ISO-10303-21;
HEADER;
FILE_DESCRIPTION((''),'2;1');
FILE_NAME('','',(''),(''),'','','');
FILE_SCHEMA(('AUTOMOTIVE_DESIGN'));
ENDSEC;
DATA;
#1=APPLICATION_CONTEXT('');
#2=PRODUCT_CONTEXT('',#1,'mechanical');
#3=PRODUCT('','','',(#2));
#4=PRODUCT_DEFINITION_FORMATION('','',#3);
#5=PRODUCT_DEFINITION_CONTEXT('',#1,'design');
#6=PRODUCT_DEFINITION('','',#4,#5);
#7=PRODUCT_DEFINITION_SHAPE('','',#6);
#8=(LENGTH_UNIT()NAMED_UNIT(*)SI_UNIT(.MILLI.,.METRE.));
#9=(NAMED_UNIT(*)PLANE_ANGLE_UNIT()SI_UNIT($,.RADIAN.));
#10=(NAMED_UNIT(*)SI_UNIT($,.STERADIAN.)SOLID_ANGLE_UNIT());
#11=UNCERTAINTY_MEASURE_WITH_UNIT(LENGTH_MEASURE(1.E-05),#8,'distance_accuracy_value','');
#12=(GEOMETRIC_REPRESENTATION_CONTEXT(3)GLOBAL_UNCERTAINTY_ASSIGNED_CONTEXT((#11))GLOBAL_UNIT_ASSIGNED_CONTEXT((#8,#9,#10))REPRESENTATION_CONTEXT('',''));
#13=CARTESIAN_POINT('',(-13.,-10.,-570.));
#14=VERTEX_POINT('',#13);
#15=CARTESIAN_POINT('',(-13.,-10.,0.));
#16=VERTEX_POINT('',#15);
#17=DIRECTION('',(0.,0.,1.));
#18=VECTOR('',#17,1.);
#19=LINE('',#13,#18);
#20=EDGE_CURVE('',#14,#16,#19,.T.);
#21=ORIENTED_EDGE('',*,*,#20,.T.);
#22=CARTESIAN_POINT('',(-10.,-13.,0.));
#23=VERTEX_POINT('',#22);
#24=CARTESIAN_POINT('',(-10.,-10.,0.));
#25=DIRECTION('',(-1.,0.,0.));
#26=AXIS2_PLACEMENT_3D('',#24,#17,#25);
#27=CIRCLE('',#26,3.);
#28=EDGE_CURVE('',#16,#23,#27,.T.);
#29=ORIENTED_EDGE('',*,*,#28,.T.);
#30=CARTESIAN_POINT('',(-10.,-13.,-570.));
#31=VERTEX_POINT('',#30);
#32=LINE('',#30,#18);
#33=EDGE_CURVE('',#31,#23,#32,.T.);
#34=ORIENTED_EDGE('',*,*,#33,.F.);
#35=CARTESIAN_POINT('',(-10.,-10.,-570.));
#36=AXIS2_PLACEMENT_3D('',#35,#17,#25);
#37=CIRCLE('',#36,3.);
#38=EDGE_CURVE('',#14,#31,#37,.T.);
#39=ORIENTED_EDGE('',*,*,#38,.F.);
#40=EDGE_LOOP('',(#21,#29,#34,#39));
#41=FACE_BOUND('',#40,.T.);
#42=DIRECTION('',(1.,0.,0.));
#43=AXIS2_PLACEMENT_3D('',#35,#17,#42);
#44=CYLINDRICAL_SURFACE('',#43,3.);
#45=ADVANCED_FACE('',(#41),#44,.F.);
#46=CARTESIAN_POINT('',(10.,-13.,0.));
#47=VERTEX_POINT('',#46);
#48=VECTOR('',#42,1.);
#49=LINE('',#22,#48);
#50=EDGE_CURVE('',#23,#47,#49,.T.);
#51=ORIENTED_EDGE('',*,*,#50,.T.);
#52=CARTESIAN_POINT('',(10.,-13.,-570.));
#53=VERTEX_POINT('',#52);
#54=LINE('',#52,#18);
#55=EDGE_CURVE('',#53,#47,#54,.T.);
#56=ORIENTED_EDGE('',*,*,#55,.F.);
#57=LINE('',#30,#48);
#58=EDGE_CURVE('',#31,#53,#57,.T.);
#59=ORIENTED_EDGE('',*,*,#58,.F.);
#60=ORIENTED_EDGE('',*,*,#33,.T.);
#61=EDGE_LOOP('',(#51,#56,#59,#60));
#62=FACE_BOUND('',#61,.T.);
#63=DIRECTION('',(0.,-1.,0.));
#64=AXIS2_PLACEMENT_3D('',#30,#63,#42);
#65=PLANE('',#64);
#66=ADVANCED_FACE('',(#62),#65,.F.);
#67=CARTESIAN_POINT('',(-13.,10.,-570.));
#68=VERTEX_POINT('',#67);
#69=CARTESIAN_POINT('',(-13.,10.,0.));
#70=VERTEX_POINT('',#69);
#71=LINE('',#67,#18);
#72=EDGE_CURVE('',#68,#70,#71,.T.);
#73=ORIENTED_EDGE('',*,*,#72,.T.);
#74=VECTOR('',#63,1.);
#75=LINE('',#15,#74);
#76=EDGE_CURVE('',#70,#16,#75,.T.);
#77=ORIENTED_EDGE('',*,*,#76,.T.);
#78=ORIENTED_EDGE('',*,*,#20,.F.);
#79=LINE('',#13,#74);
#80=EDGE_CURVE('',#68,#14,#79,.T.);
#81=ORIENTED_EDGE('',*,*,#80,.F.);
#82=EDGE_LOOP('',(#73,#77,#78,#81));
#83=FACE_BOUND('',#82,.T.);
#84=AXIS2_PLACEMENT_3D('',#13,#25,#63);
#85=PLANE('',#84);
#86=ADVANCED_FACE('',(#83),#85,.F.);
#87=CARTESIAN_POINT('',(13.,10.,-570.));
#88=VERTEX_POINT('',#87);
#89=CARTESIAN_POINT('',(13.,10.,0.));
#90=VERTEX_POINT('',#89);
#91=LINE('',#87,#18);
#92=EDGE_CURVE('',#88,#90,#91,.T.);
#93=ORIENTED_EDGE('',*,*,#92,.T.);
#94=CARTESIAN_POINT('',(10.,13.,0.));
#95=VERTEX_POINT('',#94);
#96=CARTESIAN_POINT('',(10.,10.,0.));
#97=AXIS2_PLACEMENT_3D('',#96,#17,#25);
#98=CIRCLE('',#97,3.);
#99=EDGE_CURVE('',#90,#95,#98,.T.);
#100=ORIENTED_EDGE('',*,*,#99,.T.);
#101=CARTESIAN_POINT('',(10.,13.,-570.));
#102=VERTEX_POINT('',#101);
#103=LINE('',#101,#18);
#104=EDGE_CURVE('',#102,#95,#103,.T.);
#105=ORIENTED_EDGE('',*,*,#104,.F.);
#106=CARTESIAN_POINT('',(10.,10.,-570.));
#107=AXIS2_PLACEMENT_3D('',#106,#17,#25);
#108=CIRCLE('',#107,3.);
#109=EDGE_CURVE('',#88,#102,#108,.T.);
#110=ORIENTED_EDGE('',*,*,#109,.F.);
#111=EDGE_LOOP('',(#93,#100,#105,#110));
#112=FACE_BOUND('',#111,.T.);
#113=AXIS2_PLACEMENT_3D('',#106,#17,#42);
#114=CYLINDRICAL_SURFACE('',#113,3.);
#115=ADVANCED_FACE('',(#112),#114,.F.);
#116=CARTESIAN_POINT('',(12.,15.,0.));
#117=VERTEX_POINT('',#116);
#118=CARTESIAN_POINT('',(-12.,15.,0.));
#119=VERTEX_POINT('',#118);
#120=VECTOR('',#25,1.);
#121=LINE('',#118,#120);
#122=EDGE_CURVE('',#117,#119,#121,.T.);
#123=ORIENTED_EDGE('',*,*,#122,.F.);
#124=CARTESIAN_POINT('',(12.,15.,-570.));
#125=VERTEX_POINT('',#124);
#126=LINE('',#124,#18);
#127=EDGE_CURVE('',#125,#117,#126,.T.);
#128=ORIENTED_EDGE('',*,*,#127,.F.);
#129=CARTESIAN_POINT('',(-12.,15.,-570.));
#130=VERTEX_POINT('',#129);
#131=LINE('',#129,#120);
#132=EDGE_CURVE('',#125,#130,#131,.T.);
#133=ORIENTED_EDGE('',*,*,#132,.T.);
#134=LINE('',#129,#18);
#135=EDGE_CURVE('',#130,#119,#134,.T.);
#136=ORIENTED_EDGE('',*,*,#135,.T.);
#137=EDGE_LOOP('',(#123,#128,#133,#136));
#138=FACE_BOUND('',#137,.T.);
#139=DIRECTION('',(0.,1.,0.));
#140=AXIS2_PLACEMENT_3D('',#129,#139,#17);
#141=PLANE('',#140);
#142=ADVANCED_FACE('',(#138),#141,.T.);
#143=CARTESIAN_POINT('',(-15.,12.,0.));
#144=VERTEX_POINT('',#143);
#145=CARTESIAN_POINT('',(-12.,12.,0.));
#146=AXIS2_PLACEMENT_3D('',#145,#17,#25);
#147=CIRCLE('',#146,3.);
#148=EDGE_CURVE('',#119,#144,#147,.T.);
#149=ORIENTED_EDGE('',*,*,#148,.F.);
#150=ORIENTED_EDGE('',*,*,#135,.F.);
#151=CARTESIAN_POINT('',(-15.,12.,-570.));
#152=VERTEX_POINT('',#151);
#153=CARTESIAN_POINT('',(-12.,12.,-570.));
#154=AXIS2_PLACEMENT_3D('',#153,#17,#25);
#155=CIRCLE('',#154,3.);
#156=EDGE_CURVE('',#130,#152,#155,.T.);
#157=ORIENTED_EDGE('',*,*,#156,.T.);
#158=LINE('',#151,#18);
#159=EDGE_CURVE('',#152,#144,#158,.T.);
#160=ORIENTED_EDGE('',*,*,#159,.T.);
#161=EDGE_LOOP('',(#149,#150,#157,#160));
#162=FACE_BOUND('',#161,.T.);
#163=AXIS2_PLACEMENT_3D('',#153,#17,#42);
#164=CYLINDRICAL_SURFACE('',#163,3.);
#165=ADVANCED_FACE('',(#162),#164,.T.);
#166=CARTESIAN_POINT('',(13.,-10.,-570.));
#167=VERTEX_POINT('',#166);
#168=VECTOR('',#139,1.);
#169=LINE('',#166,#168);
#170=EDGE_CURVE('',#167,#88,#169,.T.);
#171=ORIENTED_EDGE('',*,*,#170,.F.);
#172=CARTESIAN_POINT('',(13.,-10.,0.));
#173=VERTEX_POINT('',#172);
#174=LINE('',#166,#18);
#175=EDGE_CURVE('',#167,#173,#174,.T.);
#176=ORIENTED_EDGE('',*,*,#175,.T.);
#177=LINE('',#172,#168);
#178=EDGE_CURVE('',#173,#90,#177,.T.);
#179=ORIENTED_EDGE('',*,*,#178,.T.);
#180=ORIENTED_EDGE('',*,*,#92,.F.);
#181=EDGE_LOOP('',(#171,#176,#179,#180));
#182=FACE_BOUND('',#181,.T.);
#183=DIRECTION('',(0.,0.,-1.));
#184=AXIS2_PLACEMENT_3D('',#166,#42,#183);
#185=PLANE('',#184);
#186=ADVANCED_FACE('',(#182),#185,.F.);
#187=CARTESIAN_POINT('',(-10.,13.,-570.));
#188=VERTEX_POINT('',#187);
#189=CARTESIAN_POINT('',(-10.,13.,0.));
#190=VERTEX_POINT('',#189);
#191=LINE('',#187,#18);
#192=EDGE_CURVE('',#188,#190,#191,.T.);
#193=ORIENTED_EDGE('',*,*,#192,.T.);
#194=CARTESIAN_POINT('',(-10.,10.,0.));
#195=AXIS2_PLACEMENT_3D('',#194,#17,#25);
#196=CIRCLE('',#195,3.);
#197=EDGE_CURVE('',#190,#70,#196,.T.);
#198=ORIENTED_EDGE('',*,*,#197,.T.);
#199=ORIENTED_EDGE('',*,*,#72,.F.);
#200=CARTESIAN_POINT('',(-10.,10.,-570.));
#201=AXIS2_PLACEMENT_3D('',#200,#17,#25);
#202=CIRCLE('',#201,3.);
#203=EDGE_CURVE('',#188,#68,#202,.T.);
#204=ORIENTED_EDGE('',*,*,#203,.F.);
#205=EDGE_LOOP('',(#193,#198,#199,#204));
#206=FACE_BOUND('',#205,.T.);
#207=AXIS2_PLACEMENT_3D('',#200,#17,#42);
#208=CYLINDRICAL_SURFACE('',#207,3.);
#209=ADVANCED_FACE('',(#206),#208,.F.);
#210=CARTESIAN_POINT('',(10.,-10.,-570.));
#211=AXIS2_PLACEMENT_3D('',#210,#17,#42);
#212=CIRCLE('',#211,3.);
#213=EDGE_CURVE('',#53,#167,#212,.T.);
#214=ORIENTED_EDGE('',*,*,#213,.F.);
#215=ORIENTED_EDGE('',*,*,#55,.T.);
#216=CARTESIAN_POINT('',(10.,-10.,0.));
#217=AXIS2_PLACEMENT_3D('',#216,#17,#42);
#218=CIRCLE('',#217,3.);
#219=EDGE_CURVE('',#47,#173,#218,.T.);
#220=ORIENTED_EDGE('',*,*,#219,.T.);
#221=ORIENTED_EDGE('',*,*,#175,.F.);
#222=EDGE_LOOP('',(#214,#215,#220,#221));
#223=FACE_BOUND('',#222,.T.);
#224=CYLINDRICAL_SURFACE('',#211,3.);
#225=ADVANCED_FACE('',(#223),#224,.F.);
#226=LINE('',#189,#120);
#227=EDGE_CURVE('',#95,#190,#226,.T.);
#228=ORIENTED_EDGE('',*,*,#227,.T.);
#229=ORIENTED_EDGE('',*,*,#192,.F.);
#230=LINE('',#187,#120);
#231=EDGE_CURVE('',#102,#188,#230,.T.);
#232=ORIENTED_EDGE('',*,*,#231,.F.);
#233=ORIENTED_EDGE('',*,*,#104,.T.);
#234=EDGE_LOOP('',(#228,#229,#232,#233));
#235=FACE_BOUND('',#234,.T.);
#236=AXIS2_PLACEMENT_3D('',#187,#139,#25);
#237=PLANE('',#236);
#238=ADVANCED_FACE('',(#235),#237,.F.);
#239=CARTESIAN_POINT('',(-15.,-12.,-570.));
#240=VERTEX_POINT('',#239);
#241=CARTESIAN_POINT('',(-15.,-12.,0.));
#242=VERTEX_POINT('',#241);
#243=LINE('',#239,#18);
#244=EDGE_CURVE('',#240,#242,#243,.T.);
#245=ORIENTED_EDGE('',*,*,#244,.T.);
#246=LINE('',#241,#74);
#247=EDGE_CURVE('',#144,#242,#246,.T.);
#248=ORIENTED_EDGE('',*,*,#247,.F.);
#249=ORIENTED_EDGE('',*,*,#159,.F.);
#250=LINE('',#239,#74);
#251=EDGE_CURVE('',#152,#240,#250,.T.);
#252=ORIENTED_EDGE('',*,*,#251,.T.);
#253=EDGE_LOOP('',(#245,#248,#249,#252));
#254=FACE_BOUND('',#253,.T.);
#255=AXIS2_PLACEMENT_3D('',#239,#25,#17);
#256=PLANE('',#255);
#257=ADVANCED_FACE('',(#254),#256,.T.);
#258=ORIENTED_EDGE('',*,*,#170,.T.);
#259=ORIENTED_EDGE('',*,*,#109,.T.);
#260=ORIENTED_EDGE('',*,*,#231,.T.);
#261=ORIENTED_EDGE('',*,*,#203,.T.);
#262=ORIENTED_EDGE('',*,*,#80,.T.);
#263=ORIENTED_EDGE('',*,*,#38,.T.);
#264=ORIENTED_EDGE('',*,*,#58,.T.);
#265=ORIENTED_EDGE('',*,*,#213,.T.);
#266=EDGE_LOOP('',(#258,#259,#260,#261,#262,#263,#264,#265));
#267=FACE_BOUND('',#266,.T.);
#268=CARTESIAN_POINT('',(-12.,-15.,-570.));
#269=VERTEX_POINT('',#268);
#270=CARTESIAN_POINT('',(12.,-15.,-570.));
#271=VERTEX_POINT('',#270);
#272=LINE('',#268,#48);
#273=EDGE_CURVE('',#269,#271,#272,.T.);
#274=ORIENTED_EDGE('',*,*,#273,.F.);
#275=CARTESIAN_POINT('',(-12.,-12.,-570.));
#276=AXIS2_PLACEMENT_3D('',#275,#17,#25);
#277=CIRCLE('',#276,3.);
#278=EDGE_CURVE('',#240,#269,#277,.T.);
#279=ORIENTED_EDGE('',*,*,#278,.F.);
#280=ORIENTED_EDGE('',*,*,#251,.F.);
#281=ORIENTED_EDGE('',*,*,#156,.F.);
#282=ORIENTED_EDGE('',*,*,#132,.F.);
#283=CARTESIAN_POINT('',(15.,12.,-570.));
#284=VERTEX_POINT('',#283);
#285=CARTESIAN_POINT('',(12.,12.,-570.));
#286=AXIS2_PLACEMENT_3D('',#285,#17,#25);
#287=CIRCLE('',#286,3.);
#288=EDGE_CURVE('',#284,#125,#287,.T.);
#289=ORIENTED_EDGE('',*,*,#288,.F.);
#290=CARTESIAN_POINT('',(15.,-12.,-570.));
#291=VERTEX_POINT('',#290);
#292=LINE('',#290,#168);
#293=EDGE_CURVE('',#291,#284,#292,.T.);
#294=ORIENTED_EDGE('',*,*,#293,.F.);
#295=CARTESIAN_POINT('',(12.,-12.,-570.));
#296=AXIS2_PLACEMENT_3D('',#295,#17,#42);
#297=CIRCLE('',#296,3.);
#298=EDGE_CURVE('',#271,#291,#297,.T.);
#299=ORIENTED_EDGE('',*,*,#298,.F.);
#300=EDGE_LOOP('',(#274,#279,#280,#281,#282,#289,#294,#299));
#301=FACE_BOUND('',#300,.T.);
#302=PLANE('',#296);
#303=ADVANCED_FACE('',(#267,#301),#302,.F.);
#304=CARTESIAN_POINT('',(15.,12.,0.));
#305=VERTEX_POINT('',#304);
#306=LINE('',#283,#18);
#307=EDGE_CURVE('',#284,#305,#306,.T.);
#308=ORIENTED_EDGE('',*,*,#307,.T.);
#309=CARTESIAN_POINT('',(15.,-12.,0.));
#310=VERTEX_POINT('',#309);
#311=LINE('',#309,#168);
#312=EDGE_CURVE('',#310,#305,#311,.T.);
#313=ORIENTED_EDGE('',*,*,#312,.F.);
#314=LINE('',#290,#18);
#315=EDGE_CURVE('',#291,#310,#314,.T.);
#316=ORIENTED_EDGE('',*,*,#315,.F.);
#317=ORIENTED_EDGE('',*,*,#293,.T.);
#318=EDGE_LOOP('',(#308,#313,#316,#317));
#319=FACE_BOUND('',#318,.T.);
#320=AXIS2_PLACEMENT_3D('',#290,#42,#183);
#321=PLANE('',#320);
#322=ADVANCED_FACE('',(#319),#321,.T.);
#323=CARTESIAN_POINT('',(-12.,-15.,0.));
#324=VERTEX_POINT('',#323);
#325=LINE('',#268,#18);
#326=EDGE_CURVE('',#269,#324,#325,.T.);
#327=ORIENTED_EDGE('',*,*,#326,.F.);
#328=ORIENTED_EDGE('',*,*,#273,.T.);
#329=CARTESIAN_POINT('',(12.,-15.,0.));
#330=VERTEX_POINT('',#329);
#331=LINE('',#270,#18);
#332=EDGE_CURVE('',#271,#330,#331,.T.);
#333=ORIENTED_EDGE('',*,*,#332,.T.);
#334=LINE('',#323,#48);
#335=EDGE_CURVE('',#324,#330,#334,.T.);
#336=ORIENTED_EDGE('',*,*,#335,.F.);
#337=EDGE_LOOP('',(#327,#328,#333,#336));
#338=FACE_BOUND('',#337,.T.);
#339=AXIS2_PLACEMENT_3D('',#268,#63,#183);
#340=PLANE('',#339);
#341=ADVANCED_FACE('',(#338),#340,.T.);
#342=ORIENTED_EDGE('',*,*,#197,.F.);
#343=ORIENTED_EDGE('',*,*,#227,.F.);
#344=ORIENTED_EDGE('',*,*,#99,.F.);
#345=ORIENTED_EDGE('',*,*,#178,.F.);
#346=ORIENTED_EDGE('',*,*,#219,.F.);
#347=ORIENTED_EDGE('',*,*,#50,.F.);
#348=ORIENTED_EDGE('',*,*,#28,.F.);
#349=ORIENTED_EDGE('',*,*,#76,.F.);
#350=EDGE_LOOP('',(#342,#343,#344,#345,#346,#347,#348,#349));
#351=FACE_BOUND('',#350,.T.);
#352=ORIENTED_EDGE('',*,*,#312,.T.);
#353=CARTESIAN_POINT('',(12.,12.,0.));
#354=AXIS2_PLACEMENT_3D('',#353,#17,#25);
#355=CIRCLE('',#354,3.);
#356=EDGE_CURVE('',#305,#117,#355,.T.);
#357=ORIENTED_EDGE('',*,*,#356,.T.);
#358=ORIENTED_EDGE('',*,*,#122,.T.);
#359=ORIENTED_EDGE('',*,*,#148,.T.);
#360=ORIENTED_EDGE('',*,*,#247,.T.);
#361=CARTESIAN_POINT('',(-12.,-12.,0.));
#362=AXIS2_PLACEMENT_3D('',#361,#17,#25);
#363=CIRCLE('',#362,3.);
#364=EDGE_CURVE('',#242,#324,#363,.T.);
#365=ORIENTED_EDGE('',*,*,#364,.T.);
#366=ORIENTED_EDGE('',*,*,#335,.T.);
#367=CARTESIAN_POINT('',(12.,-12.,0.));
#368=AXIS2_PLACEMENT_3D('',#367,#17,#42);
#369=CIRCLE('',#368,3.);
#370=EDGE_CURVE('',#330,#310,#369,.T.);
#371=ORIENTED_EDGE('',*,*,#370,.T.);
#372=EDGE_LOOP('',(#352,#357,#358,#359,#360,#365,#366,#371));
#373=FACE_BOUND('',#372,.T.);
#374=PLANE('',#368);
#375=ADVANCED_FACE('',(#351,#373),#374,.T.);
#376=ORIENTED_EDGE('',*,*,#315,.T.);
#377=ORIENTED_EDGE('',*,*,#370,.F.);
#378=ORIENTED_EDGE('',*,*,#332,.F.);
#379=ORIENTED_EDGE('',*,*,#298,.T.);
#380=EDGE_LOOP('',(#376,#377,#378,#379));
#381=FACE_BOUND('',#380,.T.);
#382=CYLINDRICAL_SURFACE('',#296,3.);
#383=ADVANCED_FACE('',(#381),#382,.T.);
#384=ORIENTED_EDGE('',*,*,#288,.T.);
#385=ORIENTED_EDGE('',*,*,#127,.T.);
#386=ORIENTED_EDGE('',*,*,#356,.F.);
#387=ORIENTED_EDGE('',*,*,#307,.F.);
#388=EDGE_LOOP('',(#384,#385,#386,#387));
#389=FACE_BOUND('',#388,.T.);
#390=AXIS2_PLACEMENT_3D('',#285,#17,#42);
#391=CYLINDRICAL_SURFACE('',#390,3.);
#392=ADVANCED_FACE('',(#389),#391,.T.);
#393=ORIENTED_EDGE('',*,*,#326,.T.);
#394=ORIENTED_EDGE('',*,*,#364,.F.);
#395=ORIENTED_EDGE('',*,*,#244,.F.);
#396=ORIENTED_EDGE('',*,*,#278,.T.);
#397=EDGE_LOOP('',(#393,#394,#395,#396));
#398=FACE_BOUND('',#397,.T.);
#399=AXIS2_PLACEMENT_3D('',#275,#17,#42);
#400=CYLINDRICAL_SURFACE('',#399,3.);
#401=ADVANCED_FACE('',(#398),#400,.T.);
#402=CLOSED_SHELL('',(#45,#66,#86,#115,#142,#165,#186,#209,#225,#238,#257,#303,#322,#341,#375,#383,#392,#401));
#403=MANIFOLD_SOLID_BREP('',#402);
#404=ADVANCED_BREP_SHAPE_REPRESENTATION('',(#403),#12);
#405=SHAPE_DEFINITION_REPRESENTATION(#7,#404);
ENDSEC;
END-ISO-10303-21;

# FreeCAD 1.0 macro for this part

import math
import FreeCAD as App
import Part
import Sketcher

V = App.Vector
Q = App.Units.Quantity

doc = App.newDocument("Part")
body = doc.addObject("PartDesign::Body", "Body")

sketch1 = body.newObject("Sketcher::SketchObject", "Sketch")
sketch1.AttachmentSupport = (doc.getObject("XY_Plane"), [""])
sketch1.MapMode = "FlatFace"
sketch1.addGeometry(Part.LineSegment(V(-12, -15, 0), V(12, -15, 0)), False)
sketch1.addGeometry(Part.ArcOfCircle(Part.Circle(V(12, -12, 0), V(0, 0, 1), 3), math.radians(-90), math.radians(0)), False)
sketch1.addGeometry(Part.LineSegment(V(15, -12, 0), V(15, 12, 0)), False)
sketch1.addGeometry(Part.ArcOfCircle(Part.Circle(V(12, 12, 0), V(0, 0, 1), 3), math.radians(0), math.radians(90)), False)
sketch1.addGeometry(Part.LineSegment(V(12, 15, 0), V(-12, 15, 0)), False)
sketch1.addGeometry(Part.ArcOfCircle(Part.Circle(V(-12, 12, 0), V(0, 0, 1), 3), math.radians(90), math.radians(180)), False)
sketch1.addGeometry(Part.LineSegment(V(-15, 12, 0), V(-15, -12, 0)), False)
sketch1.addGeometry(Part.ArcOfCircle(Part.Circle(V(-12, -12, 0), V(0, 0, 1), 3), math.radians(180), math.radians(270)), False)
sketch1.addGeometry(Part.LineSegment(V(10, -13, 0), V(-10, -13, 0)), False)
sketch1.addGeometry(Part.ArcOfCircle(Part.Circle(V(-10, -10, 0), V(0, 0, 1), 3), math.radians(180), math.radians(270)), False)
sketch1.addGeometry(Part.LineSegment(V(-13, -10, 0), V(-13, 10, 0)), False)
sketch1.addGeometry(Part.ArcOfCircle(Part.Circle(V(-10, 10, 0), V(0, 0, 1), 3), math.radians(90), math.radians(180)), False)
sketch1.addGeometry(Part.LineSegment(V(-10, 13, 0), V(10, 13, 0)), False)
sketch1.addGeometry(Part.ArcOfCircle(Part.Circle(V(10, 10, 0), V(0, 0, 1), 3), math.radians(0), math.radians(90)), False)
sketch1.addGeometry(Part.LineSegment(V(13, 10, 0), V(13, -10, 0)), False)
sketch1.addGeometry(Part.ArcOfCircle(Part.Circle(V(10, -10, 0), V(0, 0, 1), 3), math.radians(-90), math.radians(0)), False)
sketch1.addConstraint(Sketcher.Constraint("Tangent", 0, 2, 1, 1))
sketch1.addConstraint(Sketcher.Constraint("Tangent", 1, 2, 2, 1))
sketch1.addConstraint(Sketcher.Constraint("Tangent", 2, 2, 3, 1))
sketch1.addConstraint(Sketcher.Constraint("Tangent", 3, 2, 4, 1))
sketch1.addConstraint(Sketcher.Constraint("Tangent", 4, 2, 5, 1))
sketch1.addConstraint(Sketcher.Constraint("Tangent", 5, 2, 6, 1))
sketch1.addConstraint(Sketcher.Constraint("Tangent", 6, 2, 7, 1))
sketch1.addConstraint(Sketcher.Constraint("Tangent", 7, 2, 0, 1))
sketch1.addConstraint(Sketcher.Constraint("Tangent", 8, 2, 9, 2))
sketch1.addConstraint(Sketcher.Constraint("Tangent", 9, 1, 10, 1))
sketch1.addConstraint(Sketcher.Constraint("Tangent", 10, 2, 11, 2))
sketch1.addConstraint(Sketcher.Constraint("Tangent", 11, 1, 12, 1))
sketch1.addConstraint(Sketcher.Constraint("Tangent", 12, 2, 13, 2))
sketch1.addConstraint(Sketcher.Constraint("Tangent", 13, 1, 14, 1))
sketch1.addConstraint(Sketcher.Constraint("Tangent", 14, 2, 15, 2))
sketch1.addConstraint(Sketcher.Constraint("Tangent", 15, 1, 8, 1))
sketch1.addConstraint(Sketcher.Constraint("Horizontal", 0))
sketch1.addConstraint(Sketcher.Constraint("Vertical", 2))
sketch1.addConstraint(Sketcher.Constraint("Horizontal", 4))
sketch1.addConstraint(Sketcher.Constraint("Vertical", 6))
sketch1.addConstraint(Sketcher.Constraint("Horizontal", 8))
sketch1.addConstraint(Sketcher.Constraint("Vertical", 10))
sketch1.addConstraint(Sketcher.Constraint("Horizontal", 12))
sketch1.addConstraint(Sketcher.Constraint("Vertical", 14))
sketch1.addConstraint(Sketcher.Constraint("Equal", 1, 3))
sketch1.addConstraint(Sketcher.Constraint("Equal", 3, 5))
sketch1.addConstraint(Sketcher.Constraint("Equal", 5, 7))
sketch1.addConstraint(Sketcher.Constraint("Equal", 7, 9))
sketch1.addConstraint(Sketcher.Constraint("Equal", 9, 11))
sketch1.addConstraint(Sketcher.Constraint("Equal", 11, 13))
sketch1.addConstraint(Sketcher.Constraint("Equal", 13, 15))
sketch1.addConstraint(Sketcher.Constraint("Symmetric", 1, 3, 5, 3, -1, 1))
sketch1.addConstraint(Sketcher.Constraint("Symmetric", 9, 3, 13, 3, -1, 1))
sketch1.addConstraint(Sketcher.Constraint("Equal", 4, 2))
sketch1.addConstraint(Sketcher.Constraint("Equal", 12, 10))
sketch1.addConstraint(Sketcher.Constraint("Radius", 1, Q("3 mm")))
sketch1.addConstraint(Sketcher.Constraint("DistanceX", 0, 1, 0, 2, Q("24 mm")))
sketch1.addConstraint(Sketcher.Constraint("DistanceX", 8, 2, 8, 1, Q("20 mm")))
pad1 = body.newObject("PartDesign::Pad", "Pad")
pad1.Profile = sketch1
pad1.Length = 570
pad1.Reversed = True

doc.recompute()
